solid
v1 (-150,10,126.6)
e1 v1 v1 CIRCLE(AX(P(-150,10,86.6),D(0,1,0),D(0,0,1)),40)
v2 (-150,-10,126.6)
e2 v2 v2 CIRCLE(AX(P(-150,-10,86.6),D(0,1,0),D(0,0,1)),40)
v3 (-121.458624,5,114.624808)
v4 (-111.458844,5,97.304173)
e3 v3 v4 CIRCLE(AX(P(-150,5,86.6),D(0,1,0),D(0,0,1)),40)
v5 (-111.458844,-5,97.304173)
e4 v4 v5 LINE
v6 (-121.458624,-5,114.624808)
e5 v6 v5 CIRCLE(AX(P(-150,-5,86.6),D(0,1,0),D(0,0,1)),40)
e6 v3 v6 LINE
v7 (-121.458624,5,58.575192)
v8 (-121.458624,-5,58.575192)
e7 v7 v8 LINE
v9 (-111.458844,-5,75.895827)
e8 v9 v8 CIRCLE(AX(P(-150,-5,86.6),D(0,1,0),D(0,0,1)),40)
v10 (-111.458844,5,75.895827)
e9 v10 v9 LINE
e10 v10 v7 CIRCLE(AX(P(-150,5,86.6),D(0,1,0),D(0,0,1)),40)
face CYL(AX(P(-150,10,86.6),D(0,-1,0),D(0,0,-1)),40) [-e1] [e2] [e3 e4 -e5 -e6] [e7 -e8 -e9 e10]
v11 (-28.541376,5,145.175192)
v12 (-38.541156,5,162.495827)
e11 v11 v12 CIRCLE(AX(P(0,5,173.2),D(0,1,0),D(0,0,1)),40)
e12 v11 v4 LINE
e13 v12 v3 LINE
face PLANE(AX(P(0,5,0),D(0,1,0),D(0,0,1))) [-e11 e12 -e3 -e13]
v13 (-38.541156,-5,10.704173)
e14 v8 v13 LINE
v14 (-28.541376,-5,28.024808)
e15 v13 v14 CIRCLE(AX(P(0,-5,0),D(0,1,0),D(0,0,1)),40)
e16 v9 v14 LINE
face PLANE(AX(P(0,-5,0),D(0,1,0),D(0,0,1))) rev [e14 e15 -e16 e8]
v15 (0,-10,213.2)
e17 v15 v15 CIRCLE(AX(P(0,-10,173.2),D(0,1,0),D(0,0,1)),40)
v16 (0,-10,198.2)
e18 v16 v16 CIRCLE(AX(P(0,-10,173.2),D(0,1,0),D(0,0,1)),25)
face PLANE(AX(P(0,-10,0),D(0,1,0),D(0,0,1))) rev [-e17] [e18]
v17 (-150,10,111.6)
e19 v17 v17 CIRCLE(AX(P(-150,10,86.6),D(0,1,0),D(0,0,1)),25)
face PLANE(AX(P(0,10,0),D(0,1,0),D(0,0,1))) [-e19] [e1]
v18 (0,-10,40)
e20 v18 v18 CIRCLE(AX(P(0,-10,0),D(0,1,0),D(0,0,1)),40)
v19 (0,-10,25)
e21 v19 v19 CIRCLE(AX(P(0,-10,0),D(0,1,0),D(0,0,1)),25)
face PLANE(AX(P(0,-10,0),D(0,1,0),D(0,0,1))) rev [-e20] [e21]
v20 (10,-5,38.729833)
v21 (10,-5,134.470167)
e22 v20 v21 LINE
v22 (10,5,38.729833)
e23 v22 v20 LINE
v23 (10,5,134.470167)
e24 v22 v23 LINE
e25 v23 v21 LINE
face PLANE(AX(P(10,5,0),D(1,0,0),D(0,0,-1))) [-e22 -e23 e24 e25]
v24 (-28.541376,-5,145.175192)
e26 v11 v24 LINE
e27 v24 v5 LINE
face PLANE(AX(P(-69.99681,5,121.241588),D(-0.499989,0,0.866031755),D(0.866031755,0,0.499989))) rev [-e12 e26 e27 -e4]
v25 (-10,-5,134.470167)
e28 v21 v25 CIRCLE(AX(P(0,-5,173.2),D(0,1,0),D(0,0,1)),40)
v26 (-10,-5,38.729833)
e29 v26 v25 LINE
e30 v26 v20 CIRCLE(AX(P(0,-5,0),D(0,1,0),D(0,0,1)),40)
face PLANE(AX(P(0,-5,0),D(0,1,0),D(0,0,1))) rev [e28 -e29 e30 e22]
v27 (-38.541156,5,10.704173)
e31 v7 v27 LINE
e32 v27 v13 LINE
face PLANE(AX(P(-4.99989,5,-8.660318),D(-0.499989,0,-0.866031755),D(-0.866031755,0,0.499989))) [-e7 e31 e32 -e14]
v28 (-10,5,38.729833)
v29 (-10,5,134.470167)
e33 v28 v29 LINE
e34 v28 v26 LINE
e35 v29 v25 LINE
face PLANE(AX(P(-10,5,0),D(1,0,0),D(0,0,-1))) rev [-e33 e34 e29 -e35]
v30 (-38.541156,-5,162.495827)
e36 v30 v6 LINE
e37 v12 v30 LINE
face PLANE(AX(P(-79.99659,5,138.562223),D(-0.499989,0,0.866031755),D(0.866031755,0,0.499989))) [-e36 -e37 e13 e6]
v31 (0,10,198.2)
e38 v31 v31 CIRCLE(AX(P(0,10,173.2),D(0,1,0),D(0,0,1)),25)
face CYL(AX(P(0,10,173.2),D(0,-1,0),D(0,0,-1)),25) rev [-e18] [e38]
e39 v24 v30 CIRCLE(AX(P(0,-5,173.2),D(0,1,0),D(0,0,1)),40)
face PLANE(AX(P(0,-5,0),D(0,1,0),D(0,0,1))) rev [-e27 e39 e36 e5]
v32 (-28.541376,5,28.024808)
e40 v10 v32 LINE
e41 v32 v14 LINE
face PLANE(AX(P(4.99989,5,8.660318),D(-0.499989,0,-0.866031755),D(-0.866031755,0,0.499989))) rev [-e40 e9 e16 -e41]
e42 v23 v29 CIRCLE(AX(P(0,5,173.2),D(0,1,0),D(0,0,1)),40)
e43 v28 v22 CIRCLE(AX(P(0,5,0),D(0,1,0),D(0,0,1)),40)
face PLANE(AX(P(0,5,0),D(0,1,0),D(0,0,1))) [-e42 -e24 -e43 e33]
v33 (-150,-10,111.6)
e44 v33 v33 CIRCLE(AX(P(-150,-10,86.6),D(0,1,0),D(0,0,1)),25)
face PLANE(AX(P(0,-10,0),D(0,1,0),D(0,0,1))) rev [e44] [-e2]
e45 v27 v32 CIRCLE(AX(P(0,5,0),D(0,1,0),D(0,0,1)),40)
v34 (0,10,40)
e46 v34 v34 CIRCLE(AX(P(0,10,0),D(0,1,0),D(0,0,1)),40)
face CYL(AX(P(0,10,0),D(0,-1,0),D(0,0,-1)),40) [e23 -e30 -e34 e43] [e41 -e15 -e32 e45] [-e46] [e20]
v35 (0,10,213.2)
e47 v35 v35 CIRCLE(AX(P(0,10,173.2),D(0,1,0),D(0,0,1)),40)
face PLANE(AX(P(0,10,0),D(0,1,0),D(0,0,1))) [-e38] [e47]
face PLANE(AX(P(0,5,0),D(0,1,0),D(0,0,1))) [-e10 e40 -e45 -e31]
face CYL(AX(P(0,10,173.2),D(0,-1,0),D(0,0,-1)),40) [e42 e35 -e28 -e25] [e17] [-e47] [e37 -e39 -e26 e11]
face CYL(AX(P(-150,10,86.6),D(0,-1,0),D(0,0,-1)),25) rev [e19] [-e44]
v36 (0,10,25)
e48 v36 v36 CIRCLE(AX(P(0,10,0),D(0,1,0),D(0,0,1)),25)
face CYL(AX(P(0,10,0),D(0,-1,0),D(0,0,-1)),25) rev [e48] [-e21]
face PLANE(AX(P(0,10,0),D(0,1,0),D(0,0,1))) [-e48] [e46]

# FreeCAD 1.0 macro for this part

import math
import FreeCAD as App
import Part
import Sketcher
Q = App.Units.Quantity

doc = App.newDocument("Part")
body = doc.addObject("PartDesign::Body", "Body")

sketch1 = body.newObject("Sketcher::SketchObject", "Sketch")
sketch1.AttachmentSupport = (doc.getObject("XZ_Plane"), [""])
sketch1.MapMode = "FlatFace"
sketch1.addGeometry([
    Part.Circle(App.Vector(0, 173, 0), App.Vector(0, 0, 1), 40),
    Part.Circle(App.Vector(0, 173, 0), App.Vector(0, 0, 1), 25),
], False)
sketch1.addConstraint([
    Sketcher.Constraint("Coincident", 1, 3, 0, 3),
    Sketcher.Constraint("PointOnObject", 0, 3, -2),
    Sketcher.Constraint("Diameter", 0, Q("80 mm")),
    Sketcher.Constraint("Diameter", 1, Q("50 mm")),
    Sketcher.Constraint("DistanceY", -1, 1, 0, 3, Q("173.2 mm")),
])
pad1 = body.newObject("PartDesign::Pad", "Pad")
pad1.Profile = sketch1
pad1.Length = 20
pad1.Midplane = True
body2 = doc.addObject("PartDesign::Body", "Body001")

sketch2 = body2.newObject("Sketcher::SketchObject", "Sketch001")
sketch2.AttachmentSupport = (doc.getObject("XZ_Plane001"), [""])
sketch2.MapMode = "FlatFace"
sketch2.addGeometry([
    Part.Circle(App.Vector(-150, 87, 0), App.Vector(0, 0, 1), 40),
    Part.Circle(App.Vector(-150, 87, 0), App.Vector(0, 0, 1), 25),
], False)
sketch2.addConstraint([
    Sketcher.Constraint("Coincident", 1, 3, 0, 3),
    Sketcher.Constraint("Diameter", 0, Q("80 mm")),
    Sketcher.Constraint("Diameter", 1, Q("50 mm")),
    Sketcher.Constraint("DistanceX", 0, 3, -1, 1, Q("150 mm")),
    Sketcher.Constraint("DistanceY", -1, 1, 0, 3, Q("86.6 mm")),
])
pad2 = body2.newObject("PartDesign::Pad", "Pad001")
pad2.Profile = sketch2
pad2.Length = 20
pad2.Midplane = True
body3 = doc.addObject("PartDesign::Body", "Body002")

sketch3 = body3.newObject("Sketcher::SketchObject", "Sketch002")
sketch3.AttachmentSupport = (doc.getObject("XZ_Plane002"), [""])
sketch3.MapMode = "FlatFace"
sketch3.addGeometry([
    Part.Circle(App.Vector(0, 0, 0), App.Vector(0, 0, 1), 40),
    Part.Circle(App.Vector(0, 0, 0), App.Vector(0, 0, 1), 25),
], False)
sketch3.addConstraint([
    Sketcher.Constraint("Coincident", 0, 3, -1, 1),
    Sketcher.Constraint("Coincident", 1, 3, -1, 1),
    Sketcher.Constraint("Diameter", 0, Q("80 mm")),
    Sketcher.Constraint("Diameter", 1, Q("50 mm")),
])
pad3 = body3.newObject("PartDesign::Pad", "Pad002")
pad3.Profile = sketch3
pad3.Length = 20
pad3.Midplane = True
body.AllowCompound = True
doc.recompute()

boolean = body.newObject("PartDesign::Boolean", "Boolean")
boolean.Type = "Fuse"
boolean.addObjects([body2])
doc.recompute()

boolean2 = body.newObject("PartDesign::Boolean", "Boolean001")
boolean2.Type = "Fuse"
boolean2.addObjects([body3])

sketch4 = body.newObject("Sketcher::SketchObject", "Sketch003")
sketch4.AttachmentSupport = (doc.getObject("XZ_Plane"), [""])
sketch4.MapMode = "FlatFace"
sketch4.addGeometry([
    Part.LineSegment(App.Vector(10, 134, 0), App.Vector(10, 39, 0)),
    Part.ArcOfCircle(Part.Circle(App.Vector(0, 0, 0), App.Vector(0, 0, 1), 40), math.radians(76), math.radians(104)),
    Part.LineSegment(App.Vector(-10, 39, 0), App.Vector(-10, 134, 0)),
    Part.ArcOfCircle(Part.Circle(App.Vector(0, 173, 0), App.Vector(0, 0, 1), 40), math.radians(-104), math.radians(-76)),
    Part.ArcOfCircle(Part.Circle(App.Vector(-150, 87, 0), App.Vector(0, 0, 1), 40), math.radians(16), math.radians(44)),
    Part.LineSegment(App.Vector(-121, 115, 0), App.Vector(-39, 162, 0)),
    Part.ArcOfCircle(Part.Circle(App.Vector(0, 173, 0), App.Vector(0, 0, 1), 40), math.radians(-164), math.radians(-136)),
    Part.LineSegment(App.Vector(-29, 145, 0), App.Vector(-111, 97, 0)),
    Part.LineSegment(App.Vector(-39, 11, 0), App.Vector(-121, 59, 0)),
    Part.ArcOfCircle(Part.Circle(App.Vector(-150, 87, 0), App.Vector(0, 0, 1), 40), math.radians(-44), math.radians(-16)),
    Part.LineSegment(App.Vector(-111, 76, 0), App.Vector(-29, 28, 0)),
    Part.ArcOfCircle(Part.Circle(App.Vector(0, 0, 0), App.Vector(0, 0, 1), 40), math.radians(136), math.radians(164)),
], False)
sketch4.addConstraint([
    Sketcher.Constraint("Coincident", 0, 2, 1, 1),
    Sketcher.Constraint("Coincident", 1, 2, 2, 1),
    Sketcher.Constraint("Coincident", 2, 2, 3, 1),
    Sketcher.Constraint("Coincident", 3, 2, 0, 1),
    Sketcher.Constraint("Coincident", 4, 2, 5, 1),
    Sketcher.Constraint("Coincident", 5, 2, 6, 1),
    Sketcher.Constraint("Coincident", 6, 2, 7, 1),
    Sketcher.Constraint("Coincident", 7, 2, 4, 1),
    Sketcher.Constraint("Coincident", 8, 2, 9, 1),
    Sketcher.Constraint("Coincident", 9, 2, 10, 1),
    Sketcher.Constraint("Coincident", 10, 2, 11, 1),
    Sketcher.Constraint("Coincident", 11, 2, 8, 1),
    Sketcher.Constraint("Vertical", 0),
    Sketcher.Constraint("Vertical", 2),
    Sketcher.Constraint("Coincident", 1, 3, -1, 1),
    Sketcher.Constraint("Coincident", 11, 3, -1, 1),
    Sketcher.Constraint("Coincident", 6, 3, 3, 3),
    Sketcher.Constraint("Coincident", 9, 3, 4, 3),
    Sketcher.Constraint("Equal", 1, 3),
    Sketcher.Constraint("Equal", 3, 4),
    Sketcher.Constraint("Equal", 4, 6),
    Sketcher.Constraint("Equal", 6, 9),
    Sketcher.Constraint("Equal", 9, 11),
    Sketcher.Constraint("Symmetric", 2, 2, 3, 2, -2),
    Sketcher.Constraint("Parallel", 5, 7),
    Sketcher.Constraint("Parallel", 8, 10),
    Sketcher.Constraint("Vertical", 4, 2, 8, 2),
    Sketcher.Constraint("Vertical", 7, 2, 9, 2),
    Sketcher.Constraint("Vertical", 6, 2, 10, 2),
    Sketcher.Constraint("Equal", 5, 7),
    Sketcher.Constraint("Equal", 7, 8),
    Sketcher.Constraint("Radius", 1, Q("40 mm")),
    Sketcher.Constraint("DistanceX", 4, 3, -1, 1, Q("150 mm")),
    Sketcher.Constraint("DistanceX", -1, 1, 0, 2, Q("10 mm")),
    Sketcher.Constraint("DistanceY", -1, 1, 3, 3, Q("173.2 mm")),
    Sketcher.Constraint("DistanceY", -1, 1, 4, 2, Q("114.624808 mm")),
    Sketcher.Constraint("DistanceY", 2, 2, 5, 2, Q("28.02566 mm")),
])
pad4 = body.newObject("PartDesign::Pad", "Pad003")
pad4.Profile = sketch4
pad4.Length = 10
pad4.Midplane = True

doc.recompute()
